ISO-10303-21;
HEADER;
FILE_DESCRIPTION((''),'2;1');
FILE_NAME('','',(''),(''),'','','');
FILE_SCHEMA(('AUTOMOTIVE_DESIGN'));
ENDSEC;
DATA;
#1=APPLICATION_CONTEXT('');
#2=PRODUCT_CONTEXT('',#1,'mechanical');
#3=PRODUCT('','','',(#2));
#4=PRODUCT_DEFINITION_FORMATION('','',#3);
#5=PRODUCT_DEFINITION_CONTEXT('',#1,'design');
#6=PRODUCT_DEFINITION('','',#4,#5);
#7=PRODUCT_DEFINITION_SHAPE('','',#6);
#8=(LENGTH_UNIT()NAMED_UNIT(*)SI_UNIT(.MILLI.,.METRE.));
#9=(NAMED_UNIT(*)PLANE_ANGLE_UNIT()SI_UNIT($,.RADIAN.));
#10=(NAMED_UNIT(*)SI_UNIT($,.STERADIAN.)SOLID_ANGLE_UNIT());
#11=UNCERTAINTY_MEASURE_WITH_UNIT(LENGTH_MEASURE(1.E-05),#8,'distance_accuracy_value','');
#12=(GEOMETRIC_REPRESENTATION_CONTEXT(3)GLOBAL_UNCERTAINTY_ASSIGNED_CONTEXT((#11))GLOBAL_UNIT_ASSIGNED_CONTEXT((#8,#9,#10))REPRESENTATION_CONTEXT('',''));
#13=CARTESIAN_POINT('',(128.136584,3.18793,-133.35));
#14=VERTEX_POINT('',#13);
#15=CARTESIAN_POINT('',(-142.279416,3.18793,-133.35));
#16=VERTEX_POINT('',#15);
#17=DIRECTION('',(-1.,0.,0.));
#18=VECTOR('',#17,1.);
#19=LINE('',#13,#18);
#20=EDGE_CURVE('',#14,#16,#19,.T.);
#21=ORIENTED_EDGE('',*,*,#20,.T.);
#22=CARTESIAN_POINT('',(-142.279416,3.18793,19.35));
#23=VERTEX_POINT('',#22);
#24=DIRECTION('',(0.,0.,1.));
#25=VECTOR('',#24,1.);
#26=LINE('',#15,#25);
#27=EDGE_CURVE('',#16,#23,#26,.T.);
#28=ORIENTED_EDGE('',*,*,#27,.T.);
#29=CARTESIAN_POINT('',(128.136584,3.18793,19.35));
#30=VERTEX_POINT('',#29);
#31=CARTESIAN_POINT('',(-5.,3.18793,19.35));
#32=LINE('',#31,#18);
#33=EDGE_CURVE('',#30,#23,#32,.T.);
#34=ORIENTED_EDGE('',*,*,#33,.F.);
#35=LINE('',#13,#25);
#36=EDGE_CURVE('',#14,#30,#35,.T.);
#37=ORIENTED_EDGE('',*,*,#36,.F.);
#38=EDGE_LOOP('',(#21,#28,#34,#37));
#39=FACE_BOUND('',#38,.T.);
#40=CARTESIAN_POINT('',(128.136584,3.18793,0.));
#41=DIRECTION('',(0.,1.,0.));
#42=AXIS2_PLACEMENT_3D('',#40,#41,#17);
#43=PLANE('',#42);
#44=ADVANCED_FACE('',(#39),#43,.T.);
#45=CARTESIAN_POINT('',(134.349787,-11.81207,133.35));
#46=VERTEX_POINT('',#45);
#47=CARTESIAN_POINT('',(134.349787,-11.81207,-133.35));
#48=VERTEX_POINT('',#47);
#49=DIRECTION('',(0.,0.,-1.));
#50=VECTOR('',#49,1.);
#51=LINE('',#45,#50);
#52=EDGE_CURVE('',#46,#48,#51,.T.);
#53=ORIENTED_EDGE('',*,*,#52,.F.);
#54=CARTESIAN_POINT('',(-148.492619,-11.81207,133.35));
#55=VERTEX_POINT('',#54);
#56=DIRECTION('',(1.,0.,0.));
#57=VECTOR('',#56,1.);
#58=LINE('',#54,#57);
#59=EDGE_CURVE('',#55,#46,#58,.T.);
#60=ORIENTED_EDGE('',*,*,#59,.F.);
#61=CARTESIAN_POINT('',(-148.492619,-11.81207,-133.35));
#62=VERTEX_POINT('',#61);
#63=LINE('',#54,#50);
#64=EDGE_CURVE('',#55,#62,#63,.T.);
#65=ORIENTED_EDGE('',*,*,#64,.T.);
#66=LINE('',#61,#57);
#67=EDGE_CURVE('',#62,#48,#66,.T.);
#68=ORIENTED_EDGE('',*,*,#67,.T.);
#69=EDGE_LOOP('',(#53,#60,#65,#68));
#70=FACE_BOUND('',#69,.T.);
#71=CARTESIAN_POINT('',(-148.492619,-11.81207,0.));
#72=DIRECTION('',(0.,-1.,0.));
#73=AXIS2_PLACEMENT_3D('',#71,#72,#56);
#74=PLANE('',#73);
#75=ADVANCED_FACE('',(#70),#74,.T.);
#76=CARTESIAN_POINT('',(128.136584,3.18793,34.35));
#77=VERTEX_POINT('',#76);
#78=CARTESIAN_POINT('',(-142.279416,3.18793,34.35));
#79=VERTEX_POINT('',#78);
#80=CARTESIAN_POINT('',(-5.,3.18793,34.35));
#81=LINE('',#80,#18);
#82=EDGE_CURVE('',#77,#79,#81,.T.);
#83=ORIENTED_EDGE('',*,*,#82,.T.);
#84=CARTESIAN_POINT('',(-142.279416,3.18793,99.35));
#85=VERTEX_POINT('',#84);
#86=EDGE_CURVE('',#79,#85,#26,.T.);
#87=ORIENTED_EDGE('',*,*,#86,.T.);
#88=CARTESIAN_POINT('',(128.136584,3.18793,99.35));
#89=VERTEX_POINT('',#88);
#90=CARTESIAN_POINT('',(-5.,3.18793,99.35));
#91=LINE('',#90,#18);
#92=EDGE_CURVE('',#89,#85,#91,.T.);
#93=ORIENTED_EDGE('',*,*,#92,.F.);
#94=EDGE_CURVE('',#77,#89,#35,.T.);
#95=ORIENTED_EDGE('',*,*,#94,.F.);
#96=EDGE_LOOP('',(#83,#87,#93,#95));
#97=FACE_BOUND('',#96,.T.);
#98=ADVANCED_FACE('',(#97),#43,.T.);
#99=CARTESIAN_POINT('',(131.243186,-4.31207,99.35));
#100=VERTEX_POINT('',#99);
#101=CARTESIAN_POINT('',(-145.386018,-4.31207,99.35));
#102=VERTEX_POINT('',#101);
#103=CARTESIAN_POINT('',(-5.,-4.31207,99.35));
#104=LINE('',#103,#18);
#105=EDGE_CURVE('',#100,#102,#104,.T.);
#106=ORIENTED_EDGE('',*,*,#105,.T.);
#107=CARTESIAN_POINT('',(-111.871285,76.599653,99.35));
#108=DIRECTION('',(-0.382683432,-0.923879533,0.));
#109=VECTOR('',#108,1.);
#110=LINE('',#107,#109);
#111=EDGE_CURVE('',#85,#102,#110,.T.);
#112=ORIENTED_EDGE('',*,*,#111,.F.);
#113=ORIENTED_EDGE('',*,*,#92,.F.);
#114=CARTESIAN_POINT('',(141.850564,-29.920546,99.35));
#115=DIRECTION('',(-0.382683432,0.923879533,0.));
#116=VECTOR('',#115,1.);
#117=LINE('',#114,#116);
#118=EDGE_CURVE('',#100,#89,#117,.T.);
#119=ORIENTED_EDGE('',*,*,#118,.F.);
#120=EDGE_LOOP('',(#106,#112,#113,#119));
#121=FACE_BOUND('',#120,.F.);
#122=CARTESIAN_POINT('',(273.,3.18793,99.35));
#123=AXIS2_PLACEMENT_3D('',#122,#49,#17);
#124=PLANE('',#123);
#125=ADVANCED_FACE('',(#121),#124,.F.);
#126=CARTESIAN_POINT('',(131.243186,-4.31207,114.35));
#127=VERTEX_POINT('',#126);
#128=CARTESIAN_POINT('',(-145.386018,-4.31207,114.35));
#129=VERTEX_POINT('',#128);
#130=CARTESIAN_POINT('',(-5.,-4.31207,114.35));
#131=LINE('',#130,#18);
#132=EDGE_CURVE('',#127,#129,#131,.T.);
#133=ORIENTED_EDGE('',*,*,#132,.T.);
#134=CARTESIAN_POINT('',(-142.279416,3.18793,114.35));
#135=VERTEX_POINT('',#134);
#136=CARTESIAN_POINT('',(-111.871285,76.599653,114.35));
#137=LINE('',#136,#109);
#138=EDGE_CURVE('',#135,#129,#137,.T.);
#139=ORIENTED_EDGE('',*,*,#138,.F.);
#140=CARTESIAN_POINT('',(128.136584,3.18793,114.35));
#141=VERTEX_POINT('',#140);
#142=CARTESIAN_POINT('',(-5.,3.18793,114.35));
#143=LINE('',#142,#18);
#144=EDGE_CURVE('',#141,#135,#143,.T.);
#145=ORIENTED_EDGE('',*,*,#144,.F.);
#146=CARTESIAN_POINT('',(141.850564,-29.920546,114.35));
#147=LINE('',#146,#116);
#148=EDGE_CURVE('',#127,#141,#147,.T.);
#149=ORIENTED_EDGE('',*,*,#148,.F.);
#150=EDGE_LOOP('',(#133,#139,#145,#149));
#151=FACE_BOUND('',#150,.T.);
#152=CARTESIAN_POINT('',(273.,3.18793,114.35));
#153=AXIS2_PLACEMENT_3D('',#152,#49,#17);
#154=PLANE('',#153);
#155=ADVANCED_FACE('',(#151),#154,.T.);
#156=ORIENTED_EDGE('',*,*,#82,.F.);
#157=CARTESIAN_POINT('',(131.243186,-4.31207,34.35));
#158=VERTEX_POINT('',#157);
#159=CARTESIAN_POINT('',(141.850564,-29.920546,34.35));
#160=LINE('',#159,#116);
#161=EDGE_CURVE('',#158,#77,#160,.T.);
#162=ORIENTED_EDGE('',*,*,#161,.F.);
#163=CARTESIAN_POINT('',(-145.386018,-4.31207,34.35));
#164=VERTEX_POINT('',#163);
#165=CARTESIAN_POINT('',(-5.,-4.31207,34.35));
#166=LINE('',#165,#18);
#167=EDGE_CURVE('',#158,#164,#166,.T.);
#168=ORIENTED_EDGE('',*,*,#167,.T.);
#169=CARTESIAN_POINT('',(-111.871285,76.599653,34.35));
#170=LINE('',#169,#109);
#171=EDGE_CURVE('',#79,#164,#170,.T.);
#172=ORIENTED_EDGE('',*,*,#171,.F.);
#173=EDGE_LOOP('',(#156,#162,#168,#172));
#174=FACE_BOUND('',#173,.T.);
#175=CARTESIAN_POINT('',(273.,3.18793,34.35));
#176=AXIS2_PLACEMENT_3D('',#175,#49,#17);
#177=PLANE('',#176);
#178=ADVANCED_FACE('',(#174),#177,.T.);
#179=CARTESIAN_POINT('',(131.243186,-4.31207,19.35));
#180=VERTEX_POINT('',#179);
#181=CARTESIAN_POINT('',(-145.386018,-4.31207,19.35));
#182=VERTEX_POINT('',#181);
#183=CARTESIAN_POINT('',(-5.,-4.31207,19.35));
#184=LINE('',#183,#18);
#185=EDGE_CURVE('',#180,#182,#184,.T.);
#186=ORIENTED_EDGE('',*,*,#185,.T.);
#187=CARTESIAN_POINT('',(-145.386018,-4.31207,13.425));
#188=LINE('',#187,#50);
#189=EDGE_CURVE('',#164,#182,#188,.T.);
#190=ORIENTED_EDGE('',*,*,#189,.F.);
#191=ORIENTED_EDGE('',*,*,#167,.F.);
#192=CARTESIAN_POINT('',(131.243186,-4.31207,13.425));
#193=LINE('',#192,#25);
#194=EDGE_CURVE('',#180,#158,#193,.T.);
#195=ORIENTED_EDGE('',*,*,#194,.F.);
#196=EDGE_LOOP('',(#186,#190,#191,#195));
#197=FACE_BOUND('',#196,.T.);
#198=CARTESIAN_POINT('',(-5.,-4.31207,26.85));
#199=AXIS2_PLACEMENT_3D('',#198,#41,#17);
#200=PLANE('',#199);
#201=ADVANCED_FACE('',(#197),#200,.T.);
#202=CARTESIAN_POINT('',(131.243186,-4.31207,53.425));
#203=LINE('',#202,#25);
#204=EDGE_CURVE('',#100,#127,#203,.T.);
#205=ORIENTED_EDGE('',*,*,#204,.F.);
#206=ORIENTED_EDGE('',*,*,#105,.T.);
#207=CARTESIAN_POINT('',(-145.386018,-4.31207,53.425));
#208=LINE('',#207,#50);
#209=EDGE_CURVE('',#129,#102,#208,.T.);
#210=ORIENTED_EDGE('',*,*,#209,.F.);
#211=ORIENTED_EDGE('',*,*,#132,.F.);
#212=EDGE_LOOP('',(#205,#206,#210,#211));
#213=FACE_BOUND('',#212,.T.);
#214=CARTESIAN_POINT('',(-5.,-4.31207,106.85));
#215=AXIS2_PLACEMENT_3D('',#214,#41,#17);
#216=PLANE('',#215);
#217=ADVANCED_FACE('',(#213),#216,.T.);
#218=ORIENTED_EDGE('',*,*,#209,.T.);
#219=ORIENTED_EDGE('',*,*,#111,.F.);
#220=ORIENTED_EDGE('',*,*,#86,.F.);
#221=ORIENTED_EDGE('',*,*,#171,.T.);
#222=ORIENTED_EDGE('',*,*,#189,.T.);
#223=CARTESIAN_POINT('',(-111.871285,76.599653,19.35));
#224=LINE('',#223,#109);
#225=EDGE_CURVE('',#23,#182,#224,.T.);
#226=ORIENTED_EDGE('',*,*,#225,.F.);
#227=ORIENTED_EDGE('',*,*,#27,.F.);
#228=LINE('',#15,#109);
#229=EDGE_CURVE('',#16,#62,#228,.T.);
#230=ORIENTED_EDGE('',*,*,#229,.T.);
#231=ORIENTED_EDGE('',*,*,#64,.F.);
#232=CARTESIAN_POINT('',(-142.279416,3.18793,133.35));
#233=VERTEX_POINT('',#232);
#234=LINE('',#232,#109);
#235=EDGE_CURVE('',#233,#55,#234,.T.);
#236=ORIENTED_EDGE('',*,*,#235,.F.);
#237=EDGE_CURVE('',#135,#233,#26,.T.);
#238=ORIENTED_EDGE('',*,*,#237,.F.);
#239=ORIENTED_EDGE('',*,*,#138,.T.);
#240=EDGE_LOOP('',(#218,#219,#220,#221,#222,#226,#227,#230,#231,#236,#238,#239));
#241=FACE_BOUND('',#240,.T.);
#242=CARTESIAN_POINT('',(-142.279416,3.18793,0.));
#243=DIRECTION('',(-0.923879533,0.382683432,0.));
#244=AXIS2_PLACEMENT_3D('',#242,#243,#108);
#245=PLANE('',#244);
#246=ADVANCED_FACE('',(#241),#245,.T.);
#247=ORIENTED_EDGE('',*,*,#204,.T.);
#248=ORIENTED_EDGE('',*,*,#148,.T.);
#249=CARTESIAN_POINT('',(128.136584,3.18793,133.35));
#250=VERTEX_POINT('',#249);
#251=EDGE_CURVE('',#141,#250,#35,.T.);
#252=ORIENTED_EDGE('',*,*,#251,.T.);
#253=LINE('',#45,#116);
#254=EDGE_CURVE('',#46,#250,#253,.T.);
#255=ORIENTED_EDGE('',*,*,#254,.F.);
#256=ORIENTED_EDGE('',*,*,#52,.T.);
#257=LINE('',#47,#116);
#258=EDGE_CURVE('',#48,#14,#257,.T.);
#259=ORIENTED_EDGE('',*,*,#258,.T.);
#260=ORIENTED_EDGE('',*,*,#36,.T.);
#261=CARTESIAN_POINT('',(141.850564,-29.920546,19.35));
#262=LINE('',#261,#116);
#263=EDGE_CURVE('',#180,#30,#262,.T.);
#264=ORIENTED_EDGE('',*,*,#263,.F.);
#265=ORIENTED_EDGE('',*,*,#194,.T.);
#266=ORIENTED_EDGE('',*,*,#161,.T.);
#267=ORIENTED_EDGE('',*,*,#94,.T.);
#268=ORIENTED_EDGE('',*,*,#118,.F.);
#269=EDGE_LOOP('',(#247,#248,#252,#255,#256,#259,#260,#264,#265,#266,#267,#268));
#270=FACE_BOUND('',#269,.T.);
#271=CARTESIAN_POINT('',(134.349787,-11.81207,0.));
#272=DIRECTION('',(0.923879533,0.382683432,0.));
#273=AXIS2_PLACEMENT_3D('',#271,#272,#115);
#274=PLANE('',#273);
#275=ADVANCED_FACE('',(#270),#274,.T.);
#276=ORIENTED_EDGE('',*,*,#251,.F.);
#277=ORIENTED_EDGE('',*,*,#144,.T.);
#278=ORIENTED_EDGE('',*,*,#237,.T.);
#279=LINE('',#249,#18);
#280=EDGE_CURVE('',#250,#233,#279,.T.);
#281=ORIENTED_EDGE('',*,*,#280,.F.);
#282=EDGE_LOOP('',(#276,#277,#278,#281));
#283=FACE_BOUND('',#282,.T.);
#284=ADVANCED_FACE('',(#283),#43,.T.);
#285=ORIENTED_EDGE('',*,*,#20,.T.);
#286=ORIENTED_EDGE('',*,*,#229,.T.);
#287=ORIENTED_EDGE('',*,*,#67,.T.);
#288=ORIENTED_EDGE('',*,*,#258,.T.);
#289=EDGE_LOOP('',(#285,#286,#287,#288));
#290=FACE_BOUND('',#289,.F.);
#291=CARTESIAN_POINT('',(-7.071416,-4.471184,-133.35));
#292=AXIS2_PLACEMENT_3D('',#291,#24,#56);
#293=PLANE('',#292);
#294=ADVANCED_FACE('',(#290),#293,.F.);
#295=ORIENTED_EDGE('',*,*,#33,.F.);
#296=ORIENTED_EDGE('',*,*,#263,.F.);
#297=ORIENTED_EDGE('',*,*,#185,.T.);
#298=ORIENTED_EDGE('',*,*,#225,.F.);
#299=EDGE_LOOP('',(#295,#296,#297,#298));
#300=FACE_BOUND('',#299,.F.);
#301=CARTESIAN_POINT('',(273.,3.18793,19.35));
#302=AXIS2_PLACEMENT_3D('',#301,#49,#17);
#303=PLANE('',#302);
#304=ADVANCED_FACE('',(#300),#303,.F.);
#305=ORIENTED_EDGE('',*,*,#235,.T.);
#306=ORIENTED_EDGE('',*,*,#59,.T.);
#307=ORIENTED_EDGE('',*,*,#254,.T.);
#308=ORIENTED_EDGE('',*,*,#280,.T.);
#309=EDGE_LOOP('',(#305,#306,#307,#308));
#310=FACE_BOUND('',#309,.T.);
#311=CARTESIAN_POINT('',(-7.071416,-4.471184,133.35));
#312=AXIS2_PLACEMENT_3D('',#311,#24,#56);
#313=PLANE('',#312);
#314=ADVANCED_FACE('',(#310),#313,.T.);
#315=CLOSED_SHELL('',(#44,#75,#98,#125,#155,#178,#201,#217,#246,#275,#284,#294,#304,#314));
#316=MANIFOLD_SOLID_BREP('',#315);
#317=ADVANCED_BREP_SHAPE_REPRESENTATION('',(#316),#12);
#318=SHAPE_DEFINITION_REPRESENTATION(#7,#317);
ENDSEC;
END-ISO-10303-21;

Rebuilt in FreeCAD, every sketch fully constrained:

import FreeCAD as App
import Part
import Sketcher

V = App.Vector
Q = App.Units.Quantity


def add_polygon(sketch, points):
    """Adds a closed chain of lines whose ends are joined by coincident constraints."""
    first, n = sketch.GeometryCount, len(points)
    for a, b in zip(points, points[1:] + points[:1]):
        sketch.addGeometry(Part.LineSegment(App.Vector(*a, 0), App.Vector(*b, 0)), False)
    for i in range(n):
        sketch.addConstraint(Sketcher.Constraint("Coincident", first + i, 2, first + (i + 1) % n, 1))

doc = App.newDocument("Part")
body = doc.addObject("PartDesign::Body", "Body")

# Sketch on XY plane
sketch1 = body.newObject("Sketcher::SketchObject", "Sketch")
sketch1.AttachmentSupport = (doc.getObject("XY_Plane"), [""])
sketch1.MapMode = "FlatFace"
add_polygon(sketch1, [(134.349787, -11.81207), (128.136584, 3.18793), (-142.279416, 3.18793), (-148.492619, -11.81207)])  # lines 0-3
sketch1.addConstraint(Sketcher.Constraint("Horizontal", 1))
sketch1.addConstraint(Sketcher.Constraint("Horizontal", 3))
sketch1.addConstraint(Sketcher.Constraint("Equal", 0, 2))
sketch1.addConstraint(Sketcher.Constraint("Angle", 0, Q("112.5 deg")))
sketch1.addConstraint(Sketcher.Constraint("DistanceY", 2, 2, 1, 2, 15.0))
sketch1.addConstraint(Sketcher.Constraint("DistanceX", 1, 2, 1, 1, 270.416))
sketch1.addConstraint(Sketcher.Constraint("DistanceY", -1, 1, 0, 2, 3.18793))
sketch1.addConstraint(Sketcher.Constraint("DistanceX", 2, 2, -1, 1, 148.492619))
pad1 = body.newObject("PartDesign::Pad", "Pad")
pad1.Profile = sketch1
pad1.Length = 266.7
pad1.Midplane = True

# Sketch on XZ plane
sketch2 = body.newObject("Sketcher::SketchObject", "Sketch001")
sketch2.AttachmentSupport = (doc.getObject("XZ_Plane"), [""])
sketch2.MapMode = "FlatFace"
sketch2.AttachmentOffset = App.Placement(V(0, 0, -3.18793), App.Rotation())
add_polygon(sketch2, [(273, 34.35), (273, 19.35), (-283, 19.35), (-283, 34.35)])  # lines 0-3
add_polygon(sketch2, [(273, 114.35), (273, 99.35), (-283, 99.35), (-283, 114.35)])  # lines 4-7
sketch2.addConstraint(Sketcher.Constraint("Vertical", 0))
sketch2.addConstraint(Sketcher.Constraint("Horizontal", 1))
sketch2.addConstraint(Sketcher.Constraint("Vertical", 2))
sketch2.addConstraint(Sketcher.Constraint("Horizontal", 3))
sketch2.addConstraint(Sketcher.Constraint("Vertical", 4))
sketch2.addConstraint(Sketcher.Constraint("Horizontal", 5))
sketch2.addConstraint(Sketcher.Constraint("Vertical", 6))
sketch2.addConstraint(Sketcher.Constraint("Horizontal", 7))
sketch2.addConstraint(Sketcher.Constraint("Vertical", 3, 2, 4, 2))
sketch2.addConstraint(Sketcher.Constraint("Vertical", 2, 2, 5, 2))
sketch2.addConstraint(Sketcher.Constraint("Equal", 2, 4))
sketch2.addConstraint(Sketcher.Constraint("DistanceX", 1, 2, 1, 1, 556.0))
sketch2.addConstraint(Sketcher.Constraint("DistanceY", 0, 2, 0, 1, 15.0))
sketch2.addConstraint(Sketcher.Constraint("DistanceX", -1, 1, 0, 2, 273.0))
sketch2.addConstraint(Sketcher.Constraint("DistanceY", 3, 2, 4, 2, 65.0))
sketch2.addConstraint(Sketcher.Constraint("DistanceY", -1, 1, 0, 2, 19.35))
pocket1 = body.newObject("PartDesign::Pocket", "Pocket")
pocket1.Profile = sketch2
pocket1.Length = 7.5
pocket1.Reversed = True

doc.recompute()
